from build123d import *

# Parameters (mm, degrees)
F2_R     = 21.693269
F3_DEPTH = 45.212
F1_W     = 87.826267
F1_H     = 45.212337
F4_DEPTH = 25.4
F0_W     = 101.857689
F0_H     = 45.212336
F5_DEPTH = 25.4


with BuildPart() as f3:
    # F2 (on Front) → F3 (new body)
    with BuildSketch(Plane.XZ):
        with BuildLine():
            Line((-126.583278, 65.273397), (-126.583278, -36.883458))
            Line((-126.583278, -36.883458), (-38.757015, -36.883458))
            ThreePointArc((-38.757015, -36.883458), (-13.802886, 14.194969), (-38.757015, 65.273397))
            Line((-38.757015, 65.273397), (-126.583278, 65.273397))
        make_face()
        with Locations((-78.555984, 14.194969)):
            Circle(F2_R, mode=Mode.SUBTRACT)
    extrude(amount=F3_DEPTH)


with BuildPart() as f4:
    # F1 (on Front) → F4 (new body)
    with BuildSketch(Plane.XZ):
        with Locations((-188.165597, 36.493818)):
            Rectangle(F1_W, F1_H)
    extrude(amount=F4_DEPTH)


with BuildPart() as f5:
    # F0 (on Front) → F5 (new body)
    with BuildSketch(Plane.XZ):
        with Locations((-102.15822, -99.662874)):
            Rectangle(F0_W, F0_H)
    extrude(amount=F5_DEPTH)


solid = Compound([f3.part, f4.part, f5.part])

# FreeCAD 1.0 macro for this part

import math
import FreeCAD as App
import Part
import Sketcher

V = App.Vector
Q = App.Units.Quantity

doc = App.newDocument("Part")
body = doc.addObject("PartDesign::Body", "Body")

# Sketch on XZ plane
sketch1 = body.newObject("Sketcher::SketchObject", "Sketch")
sketch1.AttachmentSupport = (doc.getObject("XZ_Plane"), [""])
sketch1.MapMode = "FlatFace"
sketch1.addGeometry([
    Part.LineSegment(V(-127, 65, 0), V(-127, -37, 0)),  # 0
    Part.LineSegment(V(-127, -37, 0), V(-39, -37, 0)),  # 1
    Part.ArcOfCircle(Part.Circle(V(-79, 14, 0), V(0, 0, 1), 65), math.radians(-52), math.radians(52)),  # 2
    Part.LineSegment(V(-39, 65, 0), V(-127, 65, 0)),  # 3
    Part.Circle(V(-79, 14, 0), V(0, 0, 1), 22),  # 4
], False)
sketch1.addConstraint([
    Sketcher.Constraint("Coincident", 0, 2, 1, 1),
    Sketcher.Constraint("Coincident", 1, 2, 2, 1),
    Sketcher.Constraint("Coincident", 2, 2, 3, 1),
    Sketcher.Constraint("Coincident", 3, 2, 0, 1),
    Sketcher.Constraint("Vertical", 0),
    Sketcher.Constraint("Horizontal", 1),
    Sketcher.Constraint("Horizontal", 3),
    Sketcher.Constraint("Coincident", 4, 3, 2, 3),
    Sketcher.Constraint("Vertical", 1, 2, 2, 2),
    Sketcher.Constraint("Diameter", 4, 43.386538),
    Sketcher.Constraint("Radius", 2, 64.753098),
    Sketcher.Constraint("DistanceX", 1, 1, 1, 2, 87.826263),
    Sketcher.Constraint("DistanceY", 0, 2, 0, 1, 102.156855),
    Sketcher.Constraint("DistanceY", -1, 1, 2, 3, 14.194969),
    Sketcher.Constraint("DistanceX", 0, 2, -1, 1, 126.583278),
])
pad1 = body.newObject("PartDesign::Pad", "Pad")
pad1.Profile = sketch1
pad1.Length = Q("1.78 in")
body2 = doc.addObject("PartDesign::Body", "Body001")

# Sketch on XZ plane
sketch2 = body2.newObject("Sketcher::SketchObject", "Sketch001")
sketch2.AttachmentSupport = (doc.getObject("XZ_Plane001"), [""])
sketch2.MapMode = "FlatFace"
sketch2.addGeometry([
    Part.LineSegment(V(-232, 59, 0), V(-232, 14, 0)),
    Part.LineSegment(V(-232, 14, 0), V(-144, 14, 0)),
    Part.LineSegment(V(-144, 14, 0), V(-144, 59, 0)),
    Part.LineSegment(V(-144, 59, 0), V(-232, 59, 0)),
], False)
sketch2.addConstraint([
    Sketcher.Constraint("Coincident", 0, 2, 1, 1),
    Sketcher.Constraint("Coincident", 1, 2, 2, 1),
    Sketcher.Constraint("Coincident", 2, 2, 3, 1),
    Sketcher.Constraint("Coincident", 3, 2, 0, 1),
    Sketcher.Constraint("Vertical", 0),
    Sketcher.Constraint("Horizontal", 1),
    Sketcher.Constraint("Vertical", 2),
    Sketcher.Constraint("Horizontal", 3),
    Sketcher.Constraint("DistanceX", 1, 1, 1, 2, 87.826267),
    Sketcher.Constraint("DistanceY", 0, 2, 0, 1, 45.212337),
    Sketcher.Constraint("DistanceX", 0, 2, -1, 1, 232.078731),
    Sketcher.Constraint("DistanceY", -1, 1, 0, 2, 13.88765),
])
pad2 = body2.newObject("PartDesign::Pad", "Pad001")
pad2.Profile = sketch2
pad2.Length = Q("1 in")
body3 = doc.addObject("PartDesign::Body", "Body002")

# Sketch on XZ plane
sketch3 = body3.newObject("Sketcher::SketchObject", "Sketch002")
sketch3.AttachmentSupport = (doc.getObject("XZ_Plane002"), [""])
sketch3.MapMode = "FlatFace"
sketch3.addGeometry([
    Part.LineSegment(V(-153, -77, 0), V(-153, -122, 0)),
    Part.LineSegment(V(-153, -122, 0), V(-51, -122, 0)),
    Part.LineSegment(V(-51, -122, 0), V(-51, -77, 0)),
    Part.LineSegment(V(-51, -77, 0), V(-153, -77, 0)),
], False)
sketch3.addConstraint([
    Sketcher.Constraint("Coincident", 0, 2, 1, 1),
    Sketcher.Constraint("Coincident", 1, 2, 2, 1),
    Sketcher.Constraint("Coincident", 2, 2, 3, 1),
    Sketcher.Constraint("Coincident", 3, 2, 0, 1),
    Sketcher.Constraint("Vertical", 0),
    Sketcher.Constraint("Horizontal", 1),
    Sketcher.Constraint("Vertical", 2),
    Sketcher.Constraint("Horizontal", 3),
    Sketcher.Constraint("DistanceX", 1, 1, 1, 2, 101.857689),
    Sketcher.Constraint("DistanceY", 0, 2, 0, 1, 45.212336),
    Sketcher.Constraint("DistanceY", 0, 2, -1, 1, 122.269042),
    Sketcher.Constraint("DistanceX", 0, 2, -1, 1, 153.087064),
])
pad3 = body3.newObject("PartDesign::Pad", "Pad002")
pad3.Profile = sketch3
pad3.Length = Q("1 in")

doc.recompute()
